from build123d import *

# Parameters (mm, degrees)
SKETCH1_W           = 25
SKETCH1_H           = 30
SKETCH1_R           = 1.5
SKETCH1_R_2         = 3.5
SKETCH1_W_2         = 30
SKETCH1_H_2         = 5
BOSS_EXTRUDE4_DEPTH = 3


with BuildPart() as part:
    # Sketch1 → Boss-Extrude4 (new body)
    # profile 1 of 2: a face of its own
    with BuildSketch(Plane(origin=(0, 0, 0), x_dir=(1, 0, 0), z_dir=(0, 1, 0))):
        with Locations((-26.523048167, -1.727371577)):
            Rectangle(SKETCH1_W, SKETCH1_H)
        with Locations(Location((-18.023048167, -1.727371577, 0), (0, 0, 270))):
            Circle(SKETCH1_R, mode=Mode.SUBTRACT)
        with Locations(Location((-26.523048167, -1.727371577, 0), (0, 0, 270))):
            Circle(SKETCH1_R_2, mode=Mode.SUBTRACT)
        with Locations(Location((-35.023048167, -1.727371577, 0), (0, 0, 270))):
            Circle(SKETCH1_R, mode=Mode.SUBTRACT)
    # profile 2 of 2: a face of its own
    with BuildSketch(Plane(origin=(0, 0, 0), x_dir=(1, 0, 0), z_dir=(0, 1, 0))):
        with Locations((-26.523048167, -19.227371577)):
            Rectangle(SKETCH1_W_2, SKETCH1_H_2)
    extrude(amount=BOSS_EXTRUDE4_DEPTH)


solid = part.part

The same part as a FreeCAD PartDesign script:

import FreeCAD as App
import Part
import Sketcher

V = App.Vector
Q = App.Units.Quantity


def add_polygon(sketch, points):
    """Adds a closed chain of lines whose ends are joined by coincident constraints."""
    first, n = sketch.GeometryCount, len(points)
    for a, b in zip(points, points[1:] + points[:1]):
        sketch.addGeometry(Part.LineSegment(App.Vector(*a, 0), App.Vector(*b, 0)), False)
    for i in range(n):
        sketch.addConstraint(Sketcher.Constraint("Coincident", first + i, 2, first + (i + 1) % n, 1))

doc = App.newDocument("Part")
params = doc.addObject("Spreadsheet::Sheet", "Params")
for row, (alias, value) in enumerate([
    ("sketch1_diameter", "3 mm"),
    ("sketch1_diameter2", "7 mm"),
    ("sketch1_width", "30 mm"),
    ("sketch1_width2", "25 mm"),
    ("sketch1_height", "5 mm"),
    ("pad1_length", "3 mm"),
], start=1):
    params.set(f"A{row}", alias)
    params.set(f"B{row}", "=" + value)
    params.setAlias(f"B{row}", alias)

body = doc.addObject("PartDesign::Body", "Body")

# Sketch on XZ plane
sketch1 = doc.addObject("Sketcher::SketchObject", "Sketch")
body.addObject(sketch1)
sketch1.AttachmentSupport = (doc.XZ_Plane, [""])
sketch1.MapMode = "FlatFace"
add_polygon(sketch1, [(-39, -13.3), (-39, 16.7), (-41.5, 16.7), (-41.5, 21.7), (-11.5, 21.7), (-11.5, 16.7), (-14, 16.7), (-14, -13.3)])  # lines 0-7
sketch1.addGeometry(Part.Circle(V(-35, 1.7, 0), V(0, 0, 1), 1.5), False)  # 8
sketch1.addGeometry(Part.Circle(V(-26.5, 1.7, 0), V(0, 0, 1), 3.5), False)  # 9
sketch1.addGeometry(Part.Circle(V(-18, 1.7, 0), V(0, 0, 1), 1.5), False)  # 10
sketch1.addConstraint([
    Sketcher.Constraint("Vertical", 0),
    Sketcher.Constraint("Horizontal", 1),
    Sketcher.Constraint("Vertical", 2),
    Sketcher.Constraint("Horizontal", 3),
    Sketcher.Constraint("Vertical", 4),
    Sketcher.Constraint("Horizontal", 5),
    Sketcher.Constraint("Vertical", 6),
    Sketcher.Constraint("Horizontal", 7),
    Sketcher.Constraint("Equal", 8, 10),
    Sketcher.Constraint("Horizontal", 8, 3, 9, 3),
    Sketcher.Constraint("Horizontal", 9, 3, 10, 3),
    Sketcher.Constraint("Horizontal", 1, 2, 4, 2),
    Sketcher.Constraint("Equal", 1, 5),
    Sketcher.Constraint("Equal", 3, 0),
    Sketcher.Constraint("Diameter", 8, Q("3 mm")),
    Sketcher.Constraint("Diameter", 9, Q("7 mm")),
    Sketcher.Constraint("DistanceX", 3, 1, 3, 2, Q("30 mm")),
    Sketcher.Constraint("DistanceX", 7, 2, 7, 1, Q("25 mm")),
    Sketcher.Constraint("DistanceY", 2, 1, 2, 2, Q("5 mm")),
    Sketcher.Constraint("DistanceX", 8, 3, 10, 3, Q("17 mm")),
    Sketcher.Constraint("DistanceX", 0, 2, 8, 3, Q("4 mm")),
    Sketcher.Constraint("DistanceY", 8, 3, 0, 2, Q("15 mm")),
    Sketcher.Constraint("DistanceX", 1, 2, 9, 3, Q("15 mm")),
    Sketcher.Constraint("DistanceX", 8, 3, -1, 1, Q("35.023048 mm")),
    Sketcher.Constraint("DistanceY", -1, 1, 8, 3, Q("1.727372 mm")),
])
sketch1.setExpression("Constraints[22]", "Params.sketch1_diameter")
sketch1.setExpression("Constraints[23]", "Params.sketch1_diameter2")
sketch1.setExpression("Constraints[24]", "Params.sketch1_width")
sketch1.setExpression("Constraints[25]", "Params.sketch1_width2")
sketch1.setExpression("Constraints[26]", "Params.sketch1_height")
pad1 = doc.addObject("PartDesign::Pad", "Pad")
body.addObject(pad1)
pad1.Profile = sketch1
pad1.setExpression("Length", "Params.pad1_length")
pad1.Reversed = True

doc.recompute()
